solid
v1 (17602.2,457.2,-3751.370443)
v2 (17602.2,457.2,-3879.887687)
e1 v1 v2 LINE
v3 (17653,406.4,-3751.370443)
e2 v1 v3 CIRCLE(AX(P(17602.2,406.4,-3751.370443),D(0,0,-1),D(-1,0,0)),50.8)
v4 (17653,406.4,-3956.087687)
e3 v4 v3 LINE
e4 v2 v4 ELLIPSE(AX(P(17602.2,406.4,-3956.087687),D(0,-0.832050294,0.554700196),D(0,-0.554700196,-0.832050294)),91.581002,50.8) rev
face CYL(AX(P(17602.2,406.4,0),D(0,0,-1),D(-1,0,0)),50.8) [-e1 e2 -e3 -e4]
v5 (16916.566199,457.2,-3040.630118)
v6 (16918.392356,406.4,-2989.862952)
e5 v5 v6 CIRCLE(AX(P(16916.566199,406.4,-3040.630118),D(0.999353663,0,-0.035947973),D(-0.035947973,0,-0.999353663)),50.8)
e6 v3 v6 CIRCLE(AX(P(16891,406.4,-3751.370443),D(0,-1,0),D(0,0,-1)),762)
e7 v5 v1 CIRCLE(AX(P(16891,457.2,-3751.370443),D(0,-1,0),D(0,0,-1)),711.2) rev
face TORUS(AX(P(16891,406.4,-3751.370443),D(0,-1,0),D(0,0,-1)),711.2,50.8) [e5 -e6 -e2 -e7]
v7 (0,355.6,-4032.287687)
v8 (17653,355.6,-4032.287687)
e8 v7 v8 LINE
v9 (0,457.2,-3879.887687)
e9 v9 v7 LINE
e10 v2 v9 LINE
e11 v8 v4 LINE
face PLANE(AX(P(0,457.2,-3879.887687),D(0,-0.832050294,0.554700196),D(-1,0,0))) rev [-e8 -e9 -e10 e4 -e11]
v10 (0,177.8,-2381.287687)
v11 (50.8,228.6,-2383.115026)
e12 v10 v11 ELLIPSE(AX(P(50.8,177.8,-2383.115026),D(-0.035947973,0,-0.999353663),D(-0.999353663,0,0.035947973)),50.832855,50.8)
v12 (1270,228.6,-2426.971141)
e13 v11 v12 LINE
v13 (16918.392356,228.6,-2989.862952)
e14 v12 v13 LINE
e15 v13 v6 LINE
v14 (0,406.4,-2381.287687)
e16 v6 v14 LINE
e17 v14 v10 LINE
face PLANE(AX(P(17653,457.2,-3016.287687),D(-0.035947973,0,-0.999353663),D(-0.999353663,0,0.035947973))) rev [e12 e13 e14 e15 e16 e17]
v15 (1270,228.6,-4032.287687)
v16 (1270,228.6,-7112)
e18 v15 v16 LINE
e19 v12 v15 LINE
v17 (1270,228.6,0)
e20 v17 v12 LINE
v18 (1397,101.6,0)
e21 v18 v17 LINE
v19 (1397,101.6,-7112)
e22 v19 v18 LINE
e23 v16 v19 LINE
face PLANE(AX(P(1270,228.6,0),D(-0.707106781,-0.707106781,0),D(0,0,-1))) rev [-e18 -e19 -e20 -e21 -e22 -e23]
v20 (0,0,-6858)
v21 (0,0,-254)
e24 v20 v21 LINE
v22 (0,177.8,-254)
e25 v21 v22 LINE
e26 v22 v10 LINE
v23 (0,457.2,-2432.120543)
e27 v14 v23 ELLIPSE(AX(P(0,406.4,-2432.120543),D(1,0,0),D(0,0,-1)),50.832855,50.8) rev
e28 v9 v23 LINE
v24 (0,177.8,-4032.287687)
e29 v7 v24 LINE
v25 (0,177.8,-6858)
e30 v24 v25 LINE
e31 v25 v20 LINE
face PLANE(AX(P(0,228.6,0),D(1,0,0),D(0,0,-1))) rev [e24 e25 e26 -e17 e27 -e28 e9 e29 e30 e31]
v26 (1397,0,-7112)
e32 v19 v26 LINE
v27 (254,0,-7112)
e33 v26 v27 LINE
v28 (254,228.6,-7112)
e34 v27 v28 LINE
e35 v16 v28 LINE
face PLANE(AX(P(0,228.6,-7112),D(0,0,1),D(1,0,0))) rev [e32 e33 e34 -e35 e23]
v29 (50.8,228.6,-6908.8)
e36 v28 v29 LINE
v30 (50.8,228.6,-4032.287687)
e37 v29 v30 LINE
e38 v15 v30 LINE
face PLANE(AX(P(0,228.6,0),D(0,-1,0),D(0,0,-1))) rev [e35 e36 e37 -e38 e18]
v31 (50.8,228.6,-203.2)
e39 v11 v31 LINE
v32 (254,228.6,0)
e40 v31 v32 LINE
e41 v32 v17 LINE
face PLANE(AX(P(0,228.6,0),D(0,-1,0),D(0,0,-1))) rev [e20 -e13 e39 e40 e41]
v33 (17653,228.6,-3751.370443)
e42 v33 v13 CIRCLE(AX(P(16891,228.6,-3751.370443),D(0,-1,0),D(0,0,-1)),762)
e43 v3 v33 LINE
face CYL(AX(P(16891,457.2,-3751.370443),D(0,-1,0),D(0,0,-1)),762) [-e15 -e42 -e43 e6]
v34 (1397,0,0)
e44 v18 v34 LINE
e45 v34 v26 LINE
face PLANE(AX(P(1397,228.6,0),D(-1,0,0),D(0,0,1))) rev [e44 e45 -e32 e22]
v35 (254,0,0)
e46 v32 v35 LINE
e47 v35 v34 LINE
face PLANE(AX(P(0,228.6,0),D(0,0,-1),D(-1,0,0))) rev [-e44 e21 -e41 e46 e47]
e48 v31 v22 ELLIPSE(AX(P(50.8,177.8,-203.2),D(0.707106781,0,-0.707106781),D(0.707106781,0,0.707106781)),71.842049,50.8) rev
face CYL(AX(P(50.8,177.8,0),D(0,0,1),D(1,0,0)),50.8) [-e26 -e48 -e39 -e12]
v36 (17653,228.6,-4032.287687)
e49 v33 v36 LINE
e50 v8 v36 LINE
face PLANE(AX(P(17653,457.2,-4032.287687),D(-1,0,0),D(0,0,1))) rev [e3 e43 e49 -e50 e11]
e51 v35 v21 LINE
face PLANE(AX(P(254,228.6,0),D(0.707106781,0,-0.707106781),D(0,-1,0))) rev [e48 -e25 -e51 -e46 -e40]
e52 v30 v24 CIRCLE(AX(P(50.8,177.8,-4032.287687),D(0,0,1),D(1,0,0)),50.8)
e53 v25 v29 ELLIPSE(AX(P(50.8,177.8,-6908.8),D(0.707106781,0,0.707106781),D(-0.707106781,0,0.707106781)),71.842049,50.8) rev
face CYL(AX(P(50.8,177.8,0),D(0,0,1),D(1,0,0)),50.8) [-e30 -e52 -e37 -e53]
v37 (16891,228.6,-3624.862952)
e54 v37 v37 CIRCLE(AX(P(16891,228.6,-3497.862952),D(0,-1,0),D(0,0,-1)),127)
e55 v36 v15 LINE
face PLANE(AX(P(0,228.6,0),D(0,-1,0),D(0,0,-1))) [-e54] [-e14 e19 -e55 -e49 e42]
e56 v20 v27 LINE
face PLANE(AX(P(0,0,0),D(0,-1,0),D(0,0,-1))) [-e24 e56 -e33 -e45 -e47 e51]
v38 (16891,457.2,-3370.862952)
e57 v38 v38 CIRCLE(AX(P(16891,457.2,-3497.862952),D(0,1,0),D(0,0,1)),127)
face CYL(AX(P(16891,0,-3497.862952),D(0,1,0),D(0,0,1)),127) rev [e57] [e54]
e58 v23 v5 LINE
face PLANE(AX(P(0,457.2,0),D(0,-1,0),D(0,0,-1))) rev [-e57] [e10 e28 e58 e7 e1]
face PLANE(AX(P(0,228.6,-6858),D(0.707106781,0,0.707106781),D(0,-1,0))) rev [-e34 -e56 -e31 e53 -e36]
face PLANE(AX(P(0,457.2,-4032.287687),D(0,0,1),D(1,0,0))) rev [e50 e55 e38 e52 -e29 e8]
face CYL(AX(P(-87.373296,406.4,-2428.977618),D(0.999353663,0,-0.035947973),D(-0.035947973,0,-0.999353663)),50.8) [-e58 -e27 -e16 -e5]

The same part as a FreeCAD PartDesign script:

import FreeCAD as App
import Part
import Sketcher
Q = App.Units.Quantity


def edges_at(feature, points):
    """Names of the edges that pass closest to the given points."""
    edges = feature.Shape.Edges
    near = lambda p: min(range(len(edges)), key=lambda i: edges[i].distToShape(Part.Vertex(*p))[0])
    return sorted({f"Edge{near(p) + 1}" for p in points})

doc = App.newDocument("Part")
body = doc.addObject("PartDesign::Body", "Body")

# Sketch on XZ plane
sketch1 = doc.addObject("Sketcher::SketchObject", "Sketch")
body.addObject(sketch1)
sketch1.AttachmentSupport = (doc.XZ_Plane, [""])
sketch1.MapMode = "FlatFace"
sketch1.addGeometry(Part.LineSegment(App.Vector(0, -7112, 0), App.Vector(0, 0, 0)), False)
sketch1.addGeometry(Part.LineSegment(App.Vector(0, 0, 0), App.Vector(1397, 0, 0)), False)
sketch1.addGeometry(Part.LineSegment(App.Vector(1397, 0, 0), App.Vector(1397, -7112, 0)), False)
sketch1.addGeometry(Part.LineSegment(App.Vector(1397, -7112, 0), App.Vector(0, -7112, 0)), False)
sketch1.addConstraint(Sketcher.Constraint("Coincident", 0, 2, 1, 1))
sketch1.addConstraint(Sketcher.Constraint("Coincident", 1, 2, 2, 1))
sketch1.addConstraint(Sketcher.Constraint("Coincident", 2, 2, 3, 1))
sketch1.addConstraint(Sketcher.Constraint("Coincident", 3, 2, 0, 1))
sketch1.addConstraint(Sketcher.Constraint("Vertical", 0))
sketch1.addConstraint(Sketcher.Constraint("Horizontal", 1))
sketch1.addConstraint(Sketcher.Constraint("Vertical", 2))
sketch1.addConstraint(Sketcher.Constraint("Horizontal", 3))
sketch1.addConstraint(Sketcher.Constraint("Coincident", 0, 2, -1, 1))
sketch1.addConstraint(Sketcher.Constraint("DistanceX", 1, 1, 1, 2, Q("55 in")))
sketch1.addConstraint(Sketcher.Constraint("DistanceY", 0, 1, 0, 2, Q("280 in")))
pad1 = doc.addObject("PartDesign::Pad", "Pad")
body.addObject(pad1)
pad1.Profile = sketch1
pad1.Length = Q("9 in")
pad1.Reversed = True
doc.recompute()

chamfer = doc.addObject("PartDesign::Chamfer", "Chamfer")
body.addObject(chamfer)
chamfer.Base = (pad1, edges_at(pad1, [(1397, 228.6, -3556)]))
chamfer.Size = Q("5 in")
doc.recompute()

chamfer2 = doc.addObject("PartDesign::Chamfer", "Chamfer001")
body.addObject(chamfer2)
chamfer2.Base = (chamfer, edges_at(chamfer, [(0, 114.3, -7112)]))
chamfer2.Size = Q("10 in")
doc.recompute()

chamfer3 = doc.addObject("PartDesign::Chamfer", "Chamfer002")
body.addObject(chamfer3)
chamfer3.Base = (chamfer2, edges_at(chamfer2, [(0, 114.3, 0)]))
chamfer3.Size = Q("10 in")

# Sketch on XZ plane
sketch2 = doc.addObject("Sketcher::SketchObject", "Sketch001")
body.addObject(sketch2)
sketch2.AttachmentSupport = (doc.XZ_Plane, [""])
sketch2.MapMode = "FlatFace"
sketch2.AttachmentOffset = App.Placement(App.Vector(0, 0, -9 * 25.4), App.Rotation())
sketch2.addGeometry(Part.LineSegment(App.Vector(0, -2381, 0), App.Vector(17653, -3016, 0)), False)
sketch2.addGeometry(Part.LineSegment(App.Vector(17653, -3016, 0), App.Vector(17653, -4032, 0)), False)
sketch2.addGeometry(Part.LineSegment(App.Vector(17653, -4032, 0), App.Vector(0, -4032, 0)), False)
sketch2.addGeometry(Part.LineSegment(App.Vector(0, -4032, 0), App.Vector(0, -2381, 0)), False)
sketch2.addConstraint(Sketcher.Constraint("Coincident", 0, 2, 1, 1))
sketch2.addConstraint(Sketcher.Constraint("Coincident", 1, 2, 2, 1))
sketch2.addConstraint(Sketcher.Constraint("Coincident", 2, 2, 3, 1))
sketch2.addConstraint(Sketcher.Constraint("Coincident", 3, 2, 0, 1))
sketch2.addConstraint(Sketcher.Constraint("Vertical", 1))
sketch2.addConstraint(Sketcher.Constraint("Horizontal", 2))
sketch2.addConstraint(Sketcher.Constraint("Vertical", 3))
sketch2.addConstraint(Sketcher.Constraint("PointOnObject", 2, 2, -2))
sketch2.addConstraint(Sketcher.Constraint("DistanceX", 2, 2, 2, 1, Q("695 in")))
sketch2.addConstraint(Sketcher.Constraint("DistanceY", 1, 2, 1, 1, Q("40 in")))
sketch2.addConstraint(Sketcher.Constraint("DistanceY", 3, 1, 3, 2, Q("65 in")))
sketch2.addConstraint(Sketcher.Constraint("DistanceY", 0, 2, -1, 1, 3016.287687))
pad2 = doc.addObject("PartDesign::Pad", "Pad001")
body.addObject(pad2)
pad2.Profile = sketch2
pad2.Length = Q("9 in")
pad2.Reversed = True
doc.recompute()

chamfer4 = doc.addObject("PartDesign::Chamfer", "Chamfer003")
body.addObject(chamfer4)
chamfer4.Base = (pad2, edges_at(pad2, [(8826.5, 457.2, -4032.288)]))
chamfer4.ChamferType = "Two distances"
chamfer4.Size = Q("4 in")
chamfer4.Size2 = Q("6 in")
doc.recompute()

fillet = doc.addObject("PartDesign::Fillet", "Fillet")
body.addObject(fillet)
fillet.Base = (chamfer4, edges_at(chamfer4, [(17653, 342.9, -3016.288)]))
fillet.Radius = Q("30 in")
doc.recompute()

fillet2 = doc.addObject("PartDesign::Fillet", "Fillet001")
body.addObject(fillet2)
fillet2.Base = (fillet, edges_at(fillet, [
    (0, 228.6, -5445.144),
    (0, 228.6, -1317.644),
    (8459.196, 457.2, -2685.575),
    (17653, 457.2, -3815.629),
    (17439.415, 457.2, -3222.328),
]))
fillet2.Radius = Q("2 in")

# Sketch on XZ plane
sketch3 = doc.addObject("Sketcher::SketchObject", "Sketch002")
body.addObject(sketch3)
sketch3.AttachmentSupport = (doc.XZ_Plane, [""])
sketch3.MapMode = "FlatFace"
sketch3.AttachmentOffset = App.Placement(App.Vector(0, 0, -18 * 25.4), App.Rotation())
sketch3.addGeometry(Part.Circle(App.Vector(16891, -3498, 0), App.Vector(0, 0, 1), 127), False)
sketch3.addConstraint(Sketcher.Constraint("Diameter", 0, Q("10 in")))
sketch3.addConstraint(Sketcher.Constraint("DistanceX", -1, 1, 0, 3, Q("665 in")))
sketch3.addConstraint(Sketcher.Constraint("DistanceY", 0, 3, -1, 1, 3497.862952))
pocket1 = doc.addObject("PartDesign::Pocket", "Pocket")
body.addObject(pocket1)
pocket1.Profile = sketch3
pocket1.Type = "ThroughAll"
pocket1.Reversed = True

doc.recompute()
